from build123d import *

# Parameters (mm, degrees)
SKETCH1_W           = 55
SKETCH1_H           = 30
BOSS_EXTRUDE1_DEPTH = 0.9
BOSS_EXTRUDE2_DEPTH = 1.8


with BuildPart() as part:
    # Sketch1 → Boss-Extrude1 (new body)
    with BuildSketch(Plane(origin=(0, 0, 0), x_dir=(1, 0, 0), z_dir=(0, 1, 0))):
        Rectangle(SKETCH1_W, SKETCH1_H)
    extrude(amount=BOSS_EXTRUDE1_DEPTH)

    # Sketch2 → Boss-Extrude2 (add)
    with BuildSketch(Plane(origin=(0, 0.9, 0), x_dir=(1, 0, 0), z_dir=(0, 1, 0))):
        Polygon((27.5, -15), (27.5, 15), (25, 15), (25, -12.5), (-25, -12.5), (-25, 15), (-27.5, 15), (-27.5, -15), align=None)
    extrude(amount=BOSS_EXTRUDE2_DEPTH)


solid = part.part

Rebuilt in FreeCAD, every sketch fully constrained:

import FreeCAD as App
import Part
import Sketcher
from FreeCAD import Vector

doc = App.newDocument("Part")
body = doc.addObject("PartDesign::Body", "Body")

# Sketch on XZ plane
sketch1 = body.newObject("Sketcher::SketchObject", "Sketch")
sketch1.AttachmentSupport = (doc.getObject("XZ_Plane"), [""])
sketch1.MapMode = "FlatFace"
sketch1.addGeometry([
    Part.LineSegment(Vector(-28, -15, 0), Vector(-28, 15, 0)),
    Part.LineSegment(Vector(-28, 15, 0), Vector(28, 15, 0)),
    Part.LineSegment(Vector(28, 15, 0), Vector(28, -15, 0)),
    Part.LineSegment(Vector(28, -15, 0), Vector(-28, -15, 0)),
], False)
sketch1.addConstraint([
    Sketcher.Constraint("Coincident", 0, 2, 1, 1),
    Sketcher.Constraint("Coincident", 1, 2, 2, 1),
    Sketcher.Constraint("Coincident", 2, 2, 3, 1),
    Sketcher.Constraint("Coincident", 3, 2, 0, 1),
    Sketcher.Constraint("Vertical", 0),
    Sketcher.Constraint("Horizontal", 1),
    Sketcher.Constraint("Vertical", 2),
    Sketcher.Constraint("Horizontal", 3),
    Sketcher.Constraint("Symmetric", 0, 2, 2, 2, -1, 1),
    Sketcher.Constraint("DistanceX", 1, 1, 1, 2, 55.0),
    Sketcher.Constraint("DistanceY", 0, 1, 0, 2, 30.0),
])
pad1 = body.newObject("PartDesign::Pad", "Pad")
pad1.Profile = sketch1
pad1.Length = 0.9
pad1.Reversed = True

# Sketch on XZ plane
sketch2 = body.newObject("Sketcher::SketchObject", "Sketch001")
sketch2.AttachmentSupport = (doc.getObject("XZ_Plane"), [""])
sketch2.MapMode = "FlatFace"
sketch2.AttachmentOffset = App.Placement(Vector(0, 0, -0.9), App.Rotation())
sketch2.addGeometry([
    Part.LineSegment(Vector(27.5, 15, 0), Vector(27.5, -15, 0)),  # 0
    Part.LineSegment(Vector(27.5, -15, 0), Vector(25, -15, 0)),  # 1
    Part.LineSegment(Vector(25, -15, 0), Vector(25, 12.5, 0)),  # 2
    Part.LineSegment(Vector(25, 12.5, 0), Vector(-25, 12.5, 0)),  # 3
    Part.LineSegment(Vector(-25, 12.5, 0), Vector(-25, -15, 0)),  # 4
    Part.LineSegment(Vector(-25, -15, 0), Vector(-27.5, -15, 0)),  # 5
    Part.LineSegment(Vector(-27.5, -15, 0), Vector(-27.5, 15, 0)),  # 6
    Part.LineSegment(Vector(-27.5, 15, 0), Vector(27.5, 15, 0)),  # 7
], False)
sketch2.addConstraint([
    Sketcher.Constraint("Coincident", 0, 2, 1, 1),
    Sketcher.Constraint("Coincident", 1, 2, 2, 1),
    Sketcher.Constraint("Coincident", 2, 2, 3, 1),
    Sketcher.Constraint("Coincident", 3, 2, 4, 1),
    Sketcher.Constraint("Coincident", 4, 2, 5, 1),
    Sketcher.Constraint("Coincident", 5, 2, 6, 1),
    Sketcher.Constraint("Coincident", 6, 2, 7, 1),
    Sketcher.Constraint("Coincident", 7, 2, 0, 1),
    Sketcher.Constraint("Vertical", 0),
    Sketcher.Constraint("Horizontal", 1),
    Sketcher.Constraint("Vertical", 2),
    Sketcher.Constraint("Horizontal", 3),
    Sketcher.Constraint("Vertical", 4),
    Sketcher.Constraint("Horizontal", 5),
    Sketcher.Constraint("Vertical", 6),
    Sketcher.Constraint("Horizontal", 7),
    Sketcher.Constraint("Symmetric", 0, 2, 6, 2, -1, 1),
    Sketcher.Constraint("Symmetric", 1, 2, 4, 2, -2),
    Sketcher.Constraint("DistanceX", 3, 2, 3, 1, 50.0),
    Sketcher.Constraint("DistanceX", 7, 1, 7, 2, 55.0),
    Sketcher.Constraint("DistanceY", 0, 2, 0, 1, 30.0),
    Sketcher.Constraint("DistanceY", 2, 1, 2, 2, 27.5),
])
pad2 = body.newObject("PartDesign::Pad", "Pad001")
pad2.Profile = sketch2
pad2.Length = 1.8
pad2.Reversed = True

doc.recompute()
